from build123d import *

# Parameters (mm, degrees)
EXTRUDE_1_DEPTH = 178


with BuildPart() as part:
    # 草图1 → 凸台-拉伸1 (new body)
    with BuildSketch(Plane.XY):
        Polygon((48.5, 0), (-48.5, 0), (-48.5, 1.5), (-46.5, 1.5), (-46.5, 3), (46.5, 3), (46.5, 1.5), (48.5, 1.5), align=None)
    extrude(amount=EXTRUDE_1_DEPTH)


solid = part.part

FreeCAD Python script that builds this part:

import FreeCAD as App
import Part
import Sketcher

doc = App.newDocument("Part")
body = doc.addObject("PartDesign::Body", "Body")

# Sketch on XY plane
sketch1 = doc.addObject("Sketcher::SketchObject", "Sketch")
body.addObject(sketch1)
sketch1.AttachmentSupport = (doc.XY_Plane, [""])
sketch1.MapMode = "FlatFace"
sketch1.addGeometry(Part.LineSegment(App.Vector(-48.5, 0, 0), App.Vector(48.5, 0, 0)), False)
sketch1.addGeometry(Part.LineSegment(App.Vector(48.5, 0, 0), App.Vector(48.5, 1.5, 0)), False)
sketch1.addGeometry(Part.LineSegment(App.Vector(48.5, 1.5, 0), App.Vector(46.5, 1.5, 0)), False)
sketch1.addGeometry(Part.LineSegment(App.Vector(46.5, 1.5, 0), App.Vector(46.5, 3, 0)), False)
sketch1.addGeometry(Part.LineSegment(App.Vector(46.5, 3, 0), App.Vector(-46.5, 3, 0)), False)
sketch1.addGeometry(Part.LineSegment(App.Vector(-46.5, 3, 0), App.Vector(-46.5, 1.5, 0)), False)
sketch1.addGeometry(Part.LineSegment(App.Vector(-46.5, 1.5, 0), App.Vector(-48.5, 1.5, 0)), False)
sketch1.addGeometry(Part.LineSegment(App.Vector(-48.5, 1.5, 0), App.Vector(-48.5, 0, 0)), False)
sketch1.addConstraint(Sketcher.Constraint("Coincident", 0, 2, 1, 1))
sketch1.addConstraint(Sketcher.Constraint("Coincident", 1, 2, 2, 1))
sketch1.addConstraint(Sketcher.Constraint("Coincident", 2, 2, 3, 1))
sketch1.addConstraint(Sketcher.Constraint("Coincident", 3, 2, 4, 1))
sketch1.addConstraint(Sketcher.Constraint("Coincident", 4, 2, 5, 1))
sketch1.addConstraint(Sketcher.Constraint("Coincident", 5, 2, 6, 1))
sketch1.addConstraint(Sketcher.Constraint("Coincident", 6, 2, 7, 1))
sketch1.addConstraint(Sketcher.Constraint("Coincident", 7, 2, 0, 1))
sketch1.addConstraint(Sketcher.Constraint("Horizontal", 0))
sketch1.addConstraint(Sketcher.Constraint("Vertical", 1))
sketch1.addConstraint(Sketcher.Constraint("Horizontal", 2))
sketch1.addConstraint(Sketcher.Constraint("Vertical", 3))
sketch1.addConstraint(Sketcher.Constraint("Horizontal", 4))
sketch1.addConstraint(Sketcher.Constraint("Vertical", 5))
sketch1.addConstraint(Sketcher.Constraint("Horizontal", 6))
sketch1.addConstraint(Sketcher.Constraint("Vertical", 7))
sketch1.addConstraint(Sketcher.Constraint("Symmetric", 0, 2, 7, 2, -1, 1))
sketch1.addConstraint(Sketcher.Constraint("Symmetric", 2, 2, 5, 2, -2))
sketch1.addConstraint(Sketcher.Constraint("Equal", 1, 3))
sketch1.addConstraint(Sketcher.Constraint("DistanceX", 0, 1, 0, 2, 97.0))
sketch1.addConstraint(Sketcher.Constraint("DistanceX", 2, 2, 2, 1, 2.0))
sketch1.addConstraint(Sketcher.Constraint("DistanceY", 1, 1, 1, 2, 1.5))
pad1 = doc.addObject("PartDesign::Pad", "Pad")
body.addObject(pad1)
pad1.Profile = sketch1
pad1.Length = 178

doc.recompute()
